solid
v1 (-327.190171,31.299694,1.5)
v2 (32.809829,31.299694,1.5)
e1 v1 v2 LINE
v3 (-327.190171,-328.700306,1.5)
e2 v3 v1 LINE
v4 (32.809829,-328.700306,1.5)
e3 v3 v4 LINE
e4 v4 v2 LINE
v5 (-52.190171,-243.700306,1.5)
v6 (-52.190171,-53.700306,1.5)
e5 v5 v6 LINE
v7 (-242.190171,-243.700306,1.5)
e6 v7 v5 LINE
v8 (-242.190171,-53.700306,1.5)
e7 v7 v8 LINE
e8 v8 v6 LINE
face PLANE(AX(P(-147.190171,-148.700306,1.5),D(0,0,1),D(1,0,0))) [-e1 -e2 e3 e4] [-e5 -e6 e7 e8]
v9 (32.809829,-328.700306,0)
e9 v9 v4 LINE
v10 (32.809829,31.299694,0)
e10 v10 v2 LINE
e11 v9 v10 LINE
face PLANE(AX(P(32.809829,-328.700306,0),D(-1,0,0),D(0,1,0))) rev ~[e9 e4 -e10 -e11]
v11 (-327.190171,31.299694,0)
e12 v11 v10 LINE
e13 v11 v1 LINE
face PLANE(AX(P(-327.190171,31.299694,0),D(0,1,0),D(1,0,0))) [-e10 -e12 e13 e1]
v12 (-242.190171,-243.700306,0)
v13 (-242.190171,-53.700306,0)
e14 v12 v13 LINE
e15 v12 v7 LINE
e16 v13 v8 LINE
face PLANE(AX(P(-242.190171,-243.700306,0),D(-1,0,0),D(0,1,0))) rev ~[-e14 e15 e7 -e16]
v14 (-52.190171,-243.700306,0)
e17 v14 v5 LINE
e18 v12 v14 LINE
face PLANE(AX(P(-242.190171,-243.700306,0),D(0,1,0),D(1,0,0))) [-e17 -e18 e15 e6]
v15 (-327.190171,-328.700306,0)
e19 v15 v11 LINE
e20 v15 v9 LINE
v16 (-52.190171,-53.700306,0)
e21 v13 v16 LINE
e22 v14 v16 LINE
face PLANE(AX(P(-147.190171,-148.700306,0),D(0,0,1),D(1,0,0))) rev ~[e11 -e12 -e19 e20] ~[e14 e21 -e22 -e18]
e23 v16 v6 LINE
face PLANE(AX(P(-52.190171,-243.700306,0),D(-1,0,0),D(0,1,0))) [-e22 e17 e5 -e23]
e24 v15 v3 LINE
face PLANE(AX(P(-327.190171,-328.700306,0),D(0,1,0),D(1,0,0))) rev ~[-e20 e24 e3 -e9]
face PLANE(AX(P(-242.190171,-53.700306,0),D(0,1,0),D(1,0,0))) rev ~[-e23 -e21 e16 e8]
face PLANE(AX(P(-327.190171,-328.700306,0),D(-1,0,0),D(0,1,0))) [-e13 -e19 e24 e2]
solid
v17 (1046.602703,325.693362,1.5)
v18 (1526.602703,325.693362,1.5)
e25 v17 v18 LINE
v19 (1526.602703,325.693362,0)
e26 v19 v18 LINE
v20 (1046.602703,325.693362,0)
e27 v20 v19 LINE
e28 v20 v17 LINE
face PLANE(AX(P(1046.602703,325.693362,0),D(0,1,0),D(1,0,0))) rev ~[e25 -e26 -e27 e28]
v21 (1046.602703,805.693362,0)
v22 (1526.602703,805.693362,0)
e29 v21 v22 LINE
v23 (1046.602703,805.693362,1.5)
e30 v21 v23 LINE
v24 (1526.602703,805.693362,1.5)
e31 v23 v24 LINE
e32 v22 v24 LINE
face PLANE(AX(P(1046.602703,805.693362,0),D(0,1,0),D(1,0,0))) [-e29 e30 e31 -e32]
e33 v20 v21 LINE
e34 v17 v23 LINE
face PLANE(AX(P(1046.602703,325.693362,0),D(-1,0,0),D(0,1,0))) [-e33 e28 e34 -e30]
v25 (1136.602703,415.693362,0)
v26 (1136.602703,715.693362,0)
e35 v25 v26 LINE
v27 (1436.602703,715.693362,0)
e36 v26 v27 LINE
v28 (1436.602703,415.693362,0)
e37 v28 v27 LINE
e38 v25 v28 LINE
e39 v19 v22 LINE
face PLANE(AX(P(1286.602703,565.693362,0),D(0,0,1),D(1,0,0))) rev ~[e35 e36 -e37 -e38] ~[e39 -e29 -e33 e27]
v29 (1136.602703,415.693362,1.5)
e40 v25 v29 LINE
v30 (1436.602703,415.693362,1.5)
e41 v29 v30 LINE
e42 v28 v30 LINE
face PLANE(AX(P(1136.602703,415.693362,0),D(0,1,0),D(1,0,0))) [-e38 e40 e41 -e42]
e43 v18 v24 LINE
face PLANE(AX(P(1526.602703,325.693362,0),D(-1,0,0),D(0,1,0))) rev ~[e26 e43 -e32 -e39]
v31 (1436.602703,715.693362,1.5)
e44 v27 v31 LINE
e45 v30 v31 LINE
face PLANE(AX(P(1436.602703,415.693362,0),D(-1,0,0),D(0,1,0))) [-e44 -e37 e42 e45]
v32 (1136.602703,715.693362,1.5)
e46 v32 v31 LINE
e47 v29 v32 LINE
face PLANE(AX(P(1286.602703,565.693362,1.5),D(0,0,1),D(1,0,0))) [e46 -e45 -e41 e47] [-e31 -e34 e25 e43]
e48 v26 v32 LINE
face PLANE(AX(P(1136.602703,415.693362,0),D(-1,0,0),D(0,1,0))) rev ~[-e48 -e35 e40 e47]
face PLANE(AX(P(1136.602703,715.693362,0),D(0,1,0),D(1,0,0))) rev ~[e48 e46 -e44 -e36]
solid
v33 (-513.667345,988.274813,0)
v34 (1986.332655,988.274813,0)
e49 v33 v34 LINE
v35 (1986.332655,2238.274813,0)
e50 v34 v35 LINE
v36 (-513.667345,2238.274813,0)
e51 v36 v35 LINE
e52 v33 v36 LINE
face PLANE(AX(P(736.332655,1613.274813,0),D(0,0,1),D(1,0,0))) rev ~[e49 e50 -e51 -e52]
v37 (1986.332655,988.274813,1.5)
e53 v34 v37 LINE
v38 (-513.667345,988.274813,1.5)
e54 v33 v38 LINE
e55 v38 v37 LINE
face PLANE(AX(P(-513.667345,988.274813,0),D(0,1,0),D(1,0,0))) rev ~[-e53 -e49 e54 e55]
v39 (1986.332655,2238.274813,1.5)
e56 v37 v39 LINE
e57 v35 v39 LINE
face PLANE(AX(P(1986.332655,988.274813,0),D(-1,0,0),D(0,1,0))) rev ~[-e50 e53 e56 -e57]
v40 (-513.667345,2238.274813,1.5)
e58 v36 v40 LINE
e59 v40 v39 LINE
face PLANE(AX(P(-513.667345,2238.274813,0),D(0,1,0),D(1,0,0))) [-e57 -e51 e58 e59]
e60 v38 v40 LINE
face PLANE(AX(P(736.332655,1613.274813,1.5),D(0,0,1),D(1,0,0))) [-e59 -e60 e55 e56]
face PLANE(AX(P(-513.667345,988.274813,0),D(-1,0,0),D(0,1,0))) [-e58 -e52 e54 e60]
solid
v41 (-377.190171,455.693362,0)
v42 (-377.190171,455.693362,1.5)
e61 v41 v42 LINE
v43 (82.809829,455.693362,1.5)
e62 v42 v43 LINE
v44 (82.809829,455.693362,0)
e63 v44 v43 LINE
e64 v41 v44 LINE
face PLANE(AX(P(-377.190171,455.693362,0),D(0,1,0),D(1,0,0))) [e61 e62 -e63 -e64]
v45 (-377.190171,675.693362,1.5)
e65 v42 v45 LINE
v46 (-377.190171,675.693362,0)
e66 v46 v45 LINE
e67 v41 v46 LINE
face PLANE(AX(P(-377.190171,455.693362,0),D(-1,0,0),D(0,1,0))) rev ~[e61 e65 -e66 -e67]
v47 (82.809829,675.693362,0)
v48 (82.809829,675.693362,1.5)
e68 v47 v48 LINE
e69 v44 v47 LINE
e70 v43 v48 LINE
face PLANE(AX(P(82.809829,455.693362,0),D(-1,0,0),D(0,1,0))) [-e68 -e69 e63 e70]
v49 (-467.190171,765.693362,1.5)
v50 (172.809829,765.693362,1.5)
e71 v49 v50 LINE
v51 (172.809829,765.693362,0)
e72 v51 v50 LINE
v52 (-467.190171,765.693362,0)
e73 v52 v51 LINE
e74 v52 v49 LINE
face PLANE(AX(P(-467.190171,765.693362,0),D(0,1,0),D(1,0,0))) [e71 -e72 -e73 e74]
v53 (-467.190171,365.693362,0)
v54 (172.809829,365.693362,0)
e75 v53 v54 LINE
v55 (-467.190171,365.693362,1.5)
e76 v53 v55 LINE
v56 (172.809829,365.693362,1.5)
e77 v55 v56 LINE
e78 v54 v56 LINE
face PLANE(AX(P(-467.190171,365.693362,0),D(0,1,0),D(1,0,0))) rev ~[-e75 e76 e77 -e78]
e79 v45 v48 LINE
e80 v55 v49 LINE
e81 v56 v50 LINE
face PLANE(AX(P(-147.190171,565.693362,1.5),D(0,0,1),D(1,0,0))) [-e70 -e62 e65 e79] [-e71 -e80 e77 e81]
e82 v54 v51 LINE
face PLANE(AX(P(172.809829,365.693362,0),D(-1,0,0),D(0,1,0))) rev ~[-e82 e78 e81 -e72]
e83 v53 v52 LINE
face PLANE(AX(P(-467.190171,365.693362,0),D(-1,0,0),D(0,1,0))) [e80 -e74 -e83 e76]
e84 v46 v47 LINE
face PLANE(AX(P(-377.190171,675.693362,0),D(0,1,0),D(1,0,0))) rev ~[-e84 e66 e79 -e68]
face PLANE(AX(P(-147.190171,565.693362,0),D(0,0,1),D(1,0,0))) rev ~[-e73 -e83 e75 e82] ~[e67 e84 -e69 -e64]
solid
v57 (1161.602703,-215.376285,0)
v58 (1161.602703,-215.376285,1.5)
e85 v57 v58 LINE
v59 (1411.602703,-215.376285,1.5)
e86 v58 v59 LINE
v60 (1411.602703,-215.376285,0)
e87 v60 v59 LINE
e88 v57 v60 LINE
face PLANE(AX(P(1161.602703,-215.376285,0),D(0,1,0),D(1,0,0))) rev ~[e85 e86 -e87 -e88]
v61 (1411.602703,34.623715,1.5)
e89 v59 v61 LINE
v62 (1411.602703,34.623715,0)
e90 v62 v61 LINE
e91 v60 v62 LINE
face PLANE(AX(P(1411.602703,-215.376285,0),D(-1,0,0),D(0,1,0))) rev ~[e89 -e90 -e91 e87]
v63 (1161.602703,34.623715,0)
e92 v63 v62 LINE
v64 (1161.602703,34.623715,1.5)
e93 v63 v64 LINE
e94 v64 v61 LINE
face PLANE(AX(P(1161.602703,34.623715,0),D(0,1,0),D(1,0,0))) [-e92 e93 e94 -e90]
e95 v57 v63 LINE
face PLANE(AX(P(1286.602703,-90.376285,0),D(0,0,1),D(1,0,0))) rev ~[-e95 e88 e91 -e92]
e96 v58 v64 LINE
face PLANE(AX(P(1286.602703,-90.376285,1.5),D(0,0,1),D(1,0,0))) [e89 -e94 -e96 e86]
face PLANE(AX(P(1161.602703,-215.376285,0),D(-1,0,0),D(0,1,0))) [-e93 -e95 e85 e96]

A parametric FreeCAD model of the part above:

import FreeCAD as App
import Part
import Sketcher
Q = App.Units.Quantity


def add_polygon(sketch, points):
    """Adds a closed chain of lines whose ends are joined by coincident constraints."""
    first, n = sketch.GeometryCount, len(points)
    for a, b in zip(points, points[1:] + points[:1]):
        sketch.addGeometry(Part.LineSegment(App.Vector(*a, 0), App.Vector(*b, 0)), False)
    for i in range(n):
        sketch.addConstraint(Sketcher.Constraint("Coincident", first + i, 2, first + (i + 1) % n, 1))

doc = App.newDocument("Part")
body = doc.addObject("PartDesign::Body", "Body")

# Sketch on XY plane
sketch1 = body.newObject("Sketcher::SketchObject", "Sketch")
sketch1.AttachmentSupport = (doc.getObject("XY_Plane"), [""])
sketch1.MapMode = "FlatFace"
add_polygon(sketch1, [(-467.190171, 765.693362), (-467.190171, 365.693362), (172.809829, 365.693362), (172.809829, 765.693362)])  # lines 0-3
add_polygon(sketch1, [(82.809829, 455.693362), (-377.190171, 455.693362), (-377.190171, 675.693362), (82.809829, 675.693362)])  # lines 4-7
sketch1.addConstraint([
    Sketcher.Constraint("Vertical", 0),
    Sketcher.Constraint("Horizontal", 1),
    Sketcher.Constraint("Vertical", 2),
    Sketcher.Constraint("Horizontal", 3),
    Sketcher.Constraint("Horizontal", 4),
    Sketcher.Constraint("Vertical", 5),
    Sketcher.Constraint("Horizontal", 6),
    Sketcher.Constraint("Vertical", 7),
    Sketcher.Constraint("DistanceX", 1, 1, 1, 2, Q("640 mm")),
    Sketcher.Constraint("DistanceX", 4, 2, 4, 1, Q("460 mm")),
    Sketcher.Constraint("DistanceY", 0, 2, 0, 1, Q("400 mm")),
    Sketcher.Constraint("DistanceY", 5, 1, 5, 2, Q("220 mm")),
    Sketcher.Constraint("DistanceX", 0, 2, 4, 2, Q("90 mm")),
    Sketcher.Constraint("DistanceY", 0, 2, 4, 2, Q("90 mm")),
    Sketcher.Constraint("DistanceX", 0, 2, -1, 1, Q("467.190171 mm")),
    Sketcher.Constraint("DistanceY", -1, 1, 0, 2, Q("365.693362 mm")),
])
pad1 = body.newObject("PartDesign::Pad", "Pad")
pad1.Profile = sketch1
pad1.Length = 1.5
body2 = doc.addObject("PartDesign::Body", "Body001")
body2.AllowCompound = True

# Sketch on XY plane
sketch2 = body2.newObject("Sketcher::SketchObject", "Sketch001")
sketch2.AttachmentSupport = (doc.getObject("XY_Plane001"), [""])
sketch2.MapMode = "FlatFace"
add_polygon(sketch2, [(1046.602703, 805.693362), (1046.602703, 325.693362), (1526.602703, 325.693362), (1526.602703, 805.693362)])  # lines 0-3
add_polygon(sketch2, [(1436.602703, 415.693362), (1136.602703, 415.693362), (1136.602703, 715.693362), (1436.602703, 715.693362)])  # lines 4-7
add_polygon(sketch2, [(1161.602703, 34.623715), (1161.602703, -215.376285), (1411.602703, -215.376285), (1411.602703, 34.623715)])  # lines 8-11
add_polygon(sketch2, [(-327.190171, 31.299694), (-327.190171, -328.700306), (32.809829, -328.700306), (32.809829, 31.299694)])  # lines 12-15
add_polygon(sketch2, [(-52.190171, -243.700306), (-242.190171, -243.700306), (-242.190171, -53.700306), (-52.190171, -53.700306)])  # lines 16-19
sketch2.addConstraint([
    Sketcher.Constraint("Vertical", 0),
    Sketcher.Constraint("Horizontal", 1),
    Sketcher.Constraint("Vertical", 2),
    Sketcher.Constraint("Horizontal", 3),
    Sketcher.Constraint("Horizontal", 4),
    Sketcher.Constraint("Vertical", 5),
    Sketcher.Constraint("Horizontal", 6),
    Sketcher.Constraint("Vertical", 7),
    Sketcher.Constraint("Vertical", 8),
    Sketcher.Constraint("Horizontal", 9),
    Sketcher.Constraint("Vertical", 10),
    Sketcher.Constraint("Horizontal", 11),
    Sketcher.Constraint("Vertical", 12),
    Sketcher.Constraint("Horizontal", 13),
    Sketcher.Constraint("Vertical", 14),
    Sketcher.Constraint("Horizontal", 15),
    Sketcher.Constraint("Horizontal", 16),
    Sketcher.Constraint("Vertical", 17),
    Sketcher.Constraint("Horizontal", 18),
    Sketcher.Constraint("Vertical", 19),
    Sketcher.Constraint("Equal", 3, 0),
    Sketcher.Constraint("Equal", 6, 5),
    Sketcher.Constraint("Equal", 11, 8),
    Sketcher.Constraint("Equal", 15, 12),
    Sketcher.Constraint("Equal", 18, 17),
    Sketcher.Constraint("DistanceX", 1, 1, 1, 2, Q("480 mm")),
    Sketcher.Constraint("DistanceX", 4, 2, 4, 1, Q("300 mm")),
    Sketcher.Constraint("DistanceX", 9, 1, 9, 2, Q("250 mm")),
    Sketcher.Constraint("DistanceX", 13, 1, 13, 2, Q("360 mm")),
    Sketcher.Constraint("DistanceX", 16, 2, 16, 1, Q("190 mm")),
    Sketcher.Constraint("DistanceX", 0, 2, 4, 2, Q("90 mm")),
    Sketcher.Constraint("DistanceY", 0, 2, 4, 2, Q("90 mm")),
    Sketcher.Constraint("DistanceX", 0, 2, 8, 2, Q("115 mm")),
    Sketcher.Constraint("DistanceX", 12, 2, 16, 2, Q("85 mm")),
    Sketcher.Constraint("DistanceY", 12, 2, 16, 2, Q("85 mm")),
    Sketcher.Constraint("DistanceY", -1, 1, 0, 2, Q("325.693362 mm")),
    Sketcher.Constraint("DistanceX", 12, 2, -1, 1, Q("327.190171 mm")),
    Sketcher.Constraint("DistanceY", 12, 2, 8, 2, Q("113.324021 mm")),
    Sketcher.Constraint("DistanceY", 14, 2, 0, 2, Q("294.393668 mm")),
    Sketcher.Constraint("DistanceX", -1, 1, 0, 2, Q("1046.602703 mm")),
])
pad2 = body2.newObject("PartDesign::Pad", "Pad001")
pad2.Profile = sketch2
pad2.Length = 1.5
body3 = doc.addObject("PartDesign::Body", "Body002")

# Sketch on XY plane
sketch3 = body3.newObject("Sketcher::SketchObject", "Sketch002")
sketch3.AttachmentSupport = (doc.getObject("XY_Plane002"), [""])
sketch3.MapMode = "FlatFace"
add_polygon(sketch3, [(-513.667345, 2238.274813), (-513.667345, 988.274813), (1986.332655, 988.274813), (1986.332655, 2238.274813)])  # lines 0-3
sketch3.addConstraint([
    Sketcher.Constraint("Vertical", 0),
    Sketcher.Constraint("Horizontal", 1),
    Sketcher.Constraint("Vertical", 2),
    Sketcher.Constraint("Horizontal", 3),
    Sketcher.Constraint("DistanceX", 1, 1, 1, 2, Q("2500 mm")),
    Sketcher.Constraint("DistanceY", 0, 2, 0, 1, Q("1250 mm")),
    Sketcher.Constraint("DistanceX", 0, 2, -1, 1, Q("513.667345 mm")),
    Sketcher.Constraint("DistanceY", -1, 1, 0, 2, Q("988.274813 mm")),
])
pad3 = body3.newObject("PartDesign::Pad", "Pad002")
pad3.Profile = sketch3
pad3.Length = 1.5

doc.recompute()
